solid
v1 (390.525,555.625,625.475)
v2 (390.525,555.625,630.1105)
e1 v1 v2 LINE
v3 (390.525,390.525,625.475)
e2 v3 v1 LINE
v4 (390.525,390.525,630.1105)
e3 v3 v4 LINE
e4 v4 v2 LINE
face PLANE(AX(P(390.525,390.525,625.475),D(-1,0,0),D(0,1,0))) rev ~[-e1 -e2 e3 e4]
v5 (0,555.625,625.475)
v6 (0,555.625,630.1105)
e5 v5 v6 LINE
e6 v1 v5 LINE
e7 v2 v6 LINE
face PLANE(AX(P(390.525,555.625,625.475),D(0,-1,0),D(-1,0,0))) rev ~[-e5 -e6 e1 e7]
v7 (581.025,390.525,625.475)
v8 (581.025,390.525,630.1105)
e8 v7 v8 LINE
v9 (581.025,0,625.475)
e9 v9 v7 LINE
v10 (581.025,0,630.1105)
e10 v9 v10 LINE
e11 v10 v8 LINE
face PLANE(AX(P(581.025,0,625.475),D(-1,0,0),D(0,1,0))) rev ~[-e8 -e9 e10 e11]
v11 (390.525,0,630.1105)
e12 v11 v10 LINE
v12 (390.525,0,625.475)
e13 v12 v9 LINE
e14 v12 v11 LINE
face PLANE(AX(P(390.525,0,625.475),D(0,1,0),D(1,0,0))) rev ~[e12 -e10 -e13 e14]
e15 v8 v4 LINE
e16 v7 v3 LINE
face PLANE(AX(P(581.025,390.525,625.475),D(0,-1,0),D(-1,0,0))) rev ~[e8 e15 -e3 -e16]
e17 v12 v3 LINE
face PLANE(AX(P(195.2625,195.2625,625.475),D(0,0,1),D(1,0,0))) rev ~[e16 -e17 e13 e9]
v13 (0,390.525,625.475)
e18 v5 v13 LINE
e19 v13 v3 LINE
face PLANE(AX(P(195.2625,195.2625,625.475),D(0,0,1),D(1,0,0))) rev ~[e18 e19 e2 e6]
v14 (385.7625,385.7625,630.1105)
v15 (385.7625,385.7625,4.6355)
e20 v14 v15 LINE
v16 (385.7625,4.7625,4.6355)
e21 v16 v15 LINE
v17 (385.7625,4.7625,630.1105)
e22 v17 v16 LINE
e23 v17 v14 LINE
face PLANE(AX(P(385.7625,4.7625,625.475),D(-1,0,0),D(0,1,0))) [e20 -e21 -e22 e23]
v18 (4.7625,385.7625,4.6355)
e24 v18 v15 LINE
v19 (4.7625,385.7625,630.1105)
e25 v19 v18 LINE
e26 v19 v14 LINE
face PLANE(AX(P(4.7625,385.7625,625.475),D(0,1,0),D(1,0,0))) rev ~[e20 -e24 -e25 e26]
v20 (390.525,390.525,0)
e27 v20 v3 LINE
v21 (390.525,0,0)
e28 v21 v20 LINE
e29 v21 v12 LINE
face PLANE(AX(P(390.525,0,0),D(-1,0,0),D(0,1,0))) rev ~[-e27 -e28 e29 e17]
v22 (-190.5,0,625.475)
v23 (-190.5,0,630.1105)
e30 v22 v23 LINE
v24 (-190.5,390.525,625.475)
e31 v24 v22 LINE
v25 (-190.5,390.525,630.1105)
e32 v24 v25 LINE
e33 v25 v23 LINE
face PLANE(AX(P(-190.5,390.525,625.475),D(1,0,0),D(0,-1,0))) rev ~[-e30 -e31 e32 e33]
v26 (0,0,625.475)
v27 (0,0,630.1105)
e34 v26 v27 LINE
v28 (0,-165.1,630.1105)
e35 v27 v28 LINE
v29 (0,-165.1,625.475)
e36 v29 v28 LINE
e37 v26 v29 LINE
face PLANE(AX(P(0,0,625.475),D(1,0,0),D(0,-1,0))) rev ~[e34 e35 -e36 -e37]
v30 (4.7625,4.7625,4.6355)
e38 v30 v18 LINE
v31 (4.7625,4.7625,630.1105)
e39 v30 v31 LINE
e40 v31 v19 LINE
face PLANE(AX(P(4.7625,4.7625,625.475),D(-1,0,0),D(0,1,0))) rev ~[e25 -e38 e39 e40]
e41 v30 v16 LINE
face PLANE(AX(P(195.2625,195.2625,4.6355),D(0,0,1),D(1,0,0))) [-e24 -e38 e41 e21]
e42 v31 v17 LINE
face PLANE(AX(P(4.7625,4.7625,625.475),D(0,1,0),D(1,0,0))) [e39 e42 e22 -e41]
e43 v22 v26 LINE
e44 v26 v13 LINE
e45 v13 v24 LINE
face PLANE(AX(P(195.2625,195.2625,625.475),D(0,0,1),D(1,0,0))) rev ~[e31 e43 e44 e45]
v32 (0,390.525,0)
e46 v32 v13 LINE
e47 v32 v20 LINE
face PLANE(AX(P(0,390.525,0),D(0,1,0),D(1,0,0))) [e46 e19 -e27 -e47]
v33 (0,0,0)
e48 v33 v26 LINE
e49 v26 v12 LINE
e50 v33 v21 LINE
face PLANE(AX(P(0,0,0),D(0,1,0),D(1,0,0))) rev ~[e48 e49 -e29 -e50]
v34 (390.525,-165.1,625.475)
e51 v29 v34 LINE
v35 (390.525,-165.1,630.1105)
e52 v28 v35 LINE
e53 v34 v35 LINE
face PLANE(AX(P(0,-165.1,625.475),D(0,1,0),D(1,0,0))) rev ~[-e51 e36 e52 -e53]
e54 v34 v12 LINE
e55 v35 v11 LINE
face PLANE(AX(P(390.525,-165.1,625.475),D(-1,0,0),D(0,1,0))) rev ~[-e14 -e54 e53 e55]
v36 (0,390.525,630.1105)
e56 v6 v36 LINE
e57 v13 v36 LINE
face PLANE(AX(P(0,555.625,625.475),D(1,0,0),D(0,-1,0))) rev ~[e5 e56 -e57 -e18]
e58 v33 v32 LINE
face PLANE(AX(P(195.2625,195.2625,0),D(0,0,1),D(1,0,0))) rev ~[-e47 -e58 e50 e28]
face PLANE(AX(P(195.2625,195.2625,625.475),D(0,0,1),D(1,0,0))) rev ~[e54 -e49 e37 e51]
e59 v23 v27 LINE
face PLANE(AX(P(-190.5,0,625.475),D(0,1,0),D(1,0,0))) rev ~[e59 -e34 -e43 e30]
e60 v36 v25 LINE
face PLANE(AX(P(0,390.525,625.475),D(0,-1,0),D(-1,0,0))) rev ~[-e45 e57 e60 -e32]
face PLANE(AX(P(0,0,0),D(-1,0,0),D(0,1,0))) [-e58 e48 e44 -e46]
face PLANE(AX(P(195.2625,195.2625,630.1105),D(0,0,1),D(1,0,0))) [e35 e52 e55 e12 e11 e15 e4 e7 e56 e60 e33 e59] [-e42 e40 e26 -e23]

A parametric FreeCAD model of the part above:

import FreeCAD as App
import Part
import Sketcher

V = App.Vector
Q = App.Units.Quantity

doc = App.newDocument("Part")
body = doc.addObject("PartDesign::Body", "Body")

sketch1 = body.newObject("Sketcher::SketchObject", "Sketch")
sketch1.AttachmentSupport = (doc.getObject("XY_Plane"), [""])
sketch1.MapMode = "FlatFace"
sketch1.addGeometry(Part.LineSegment(V(0, 391, 0), V(0, 0, 0)), False)
sketch1.addGeometry(Part.LineSegment(V(0, 0, 0), V(391, 0, 0)), False)
sketch1.addGeometry(Part.LineSegment(V(391, 0, 0), V(391, 391, 0)), False)
sketch1.addGeometry(Part.LineSegment(V(391, 391, 0), V(0, 391, 0)), False)
sketch1.addGeometry(Part.LineSegment(V(386, 5, 0), V(5, 5, 0)), False)
sketch1.addGeometry(Part.LineSegment(V(5, 5, 0), V(5, 386, 0)), False)
sketch1.addGeometry(Part.LineSegment(V(5, 386, 0), V(386, 386, 0)), False)
sketch1.addGeometry(Part.LineSegment(V(386, 386, 0), V(386, 5, 0)), False)
sketch1.addConstraint(Sketcher.Constraint("Coincident", 0, 2, 1, 1))
sketch1.addConstraint(Sketcher.Constraint("Coincident", 1, 2, 2, 1))
sketch1.addConstraint(Sketcher.Constraint("Coincident", 2, 2, 3, 1))
sketch1.addConstraint(Sketcher.Constraint("Coincident", 3, 2, 0, 1))
sketch1.addConstraint(Sketcher.Constraint("Coincident", 4, 2, 5, 1))
sketch1.addConstraint(Sketcher.Constraint("Coincident", 5, 2, 6, 1))
sketch1.addConstraint(Sketcher.Constraint("Coincident", 6, 2, 7, 1))
sketch1.addConstraint(Sketcher.Constraint("Coincident", 7, 2, 4, 1))
sketch1.addConstraint(Sketcher.Constraint("Vertical", 0))
sketch1.addConstraint(Sketcher.Constraint("Horizontal", 1))
sketch1.addConstraint(Sketcher.Constraint("Vertical", 2))
sketch1.addConstraint(Sketcher.Constraint("Horizontal", 3))
sketch1.addConstraint(Sketcher.Constraint("Horizontal", 4))
sketch1.addConstraint(Sketcher.Constraint("Vertical", 5))
sketch1.addConstraint(Sketcher.Constraint("Horizontal", 6))
sketch1.addConstraint(Sketcher.Constraint("Vertical", 7))
sketch1.addConstraint(Sketcher.Constraint("Coincident", 0, 2, -1, 1))
sketch1.addConstraint(Sketcher.Constraint("Equal", 3, 0))
sketch1.addConstraint(Sketcher.Constraint("Equal", 6, 5))
sketch1.addConstraint(Sketcher.Constraint("DistanceX", 4, 2, 4, 1, Q("15 in")))
sketch1.addConstraint(Sketcher.Constraint("DistanceX", 1, 1, 1, 2, Q("15.375 in")))
sketch1.addConstraint(Sketcher.Constraint("DistanceX", -1, 1, 4, 2, Q("0.1875 in")))
sketch1.addConstraint(Sketcher.Constraint("DistanceY", -1, 1, 4, 2, Q("0.1875 in")))
pad1 = body.newObject("PartDesign::Pad", "Pad")
pad1.Profile = sketch1
pad1.Length = Q("24.625 in")

sketch2 = body.newObject("Sketcher::SketchObject", "Sketch001")
sketch2.AttachmentSupport = (doc.getObject("XY_Plane"), [""])
sketch2.MapMode = "FlatFace"
sketch2.addGeometry(Part.LineSegment(V(5, 386, 0), V(5, 5, 0)), False)
sketch2.addGeometry(Part.LineSegment(V(5, 5, 0), V(386, 5, 0)), False)
sketch2.addGeometry(Part.LineSegment(V(386, 5, 0), V(386, 386, 0)), False)
sketch2.addGeometry(Part.LineSegment(V(386, 386, 0), V(5, 386, 0)), False)
sketch2.addConstraint(Sketcher.Constraint("Coincident", 0, 2, 1, 1))
sketch2.addConstraint(Sketcher.Constraint("Coincident", 1, 2, 2, 1))
sketch2.addConstraint(Sketcher.Constraint("Coincident", 2, 2, 3, 1))
sketch2.addConstraint(Sketcher.Constraint("Coincident", 3, 2, 0, 1))
sketch2.addConstraint(Sketcher.Constraint("Vertical", 0))
sketch2.addConstraint(Sketcher.Constraint("Horizontal", 1))
sketch2.addConstraint(Sketcher.Constraint("Vertical", 2))
sketch2.addConstraint(Sketcher.Constraint("Horizontal", 3))
sketch2.addConstraint(Sketcher.Constraint("Equal", 3, 0))
sketch2.addConstraint(Sketcher.Constraint("DistanceX", 1, 1, 1, 2, Q("15 in")))
sketch2.addConstraint(Sketcher.Constraint("DistanceX", -1, 1, 0, 2, Q("0.1875 in")))
sketch2.addConstraint(Sketcher.Constraint("DistanceY", -1, 1, 0, 2, Q("0.1875 in")))
pad2 = body.newObject("PartDesign::Pad", "Pad001")
pad2.Profile = sketch2
pad2.Length = Q("0.1825 in")

sketch3 = body.newObject("Sketcher::SketchObject", "Sketch002")
sketch3.AttachmentSupport = (doc.getObject("XY_Plane"), [""])
sketch3.MapMode = "FlatFace"
sketch3.AttachmentOffset = App.Placement(V(0, 0, 24.625 * 25.4), App.Rotation())
sketch3.addGeometry(Part.LineSegment(V(-190, 0, 0), V(0, 0, 0)), False)
sketch3.addGeometry(Part.LineSegment(V(0, 0, 0), V(0, -165, 0)), False)
sketch3.addGeometry(Part.LineSegment(V(0, -165, 0), V(391, -165, 0)), False)
sketch3.addGeometry(Part.LineSegment(V(391, -165, 0), V(391, 0, 0)), False)
sketch3.addGeometry(Part.LineSegment(V(391, 0, 0), V(581, 0, 0)), False)
sketch3.addGeometry(Part.LineSegment(V(581, 0, 0), V(581, 391, 0)), False)
sketch3.addGeometry(Part.LineSegment(V(581, 391, 0), V(391, 391, 0)), False)
sketch3.addGeometry(Part.LineSegment(V(391, 391, 0), V(391, 556, 0)), False)
sketch3.addGeometry(Part.LineSegment(V(391, 556, 0), V(0, 556, 0)), False)
sketch3.addGeometry(Part.LineSegment(V(0, 556, 0), V(0, 391, 0)), False)
sketch3.addGeometry(Part.LineSegment(V(0, 391, 0), V(-190, 391, 0)), False)
sketch3.addGeometry(Part.LineSegment(V(-190, 391, 0), V(-190, 0, 0)), False)
sketch3.addGeometry(Part.LineSegment(V(386, 5, 0), V(5, 5, 0)), False)
sketch3.addGeometry(Part.LineSegment(V(5, 5, 0), V(5, 386, 0)), False)
sketch3.addGeometry(Part.LineSegment(V(5, 386, 0), V(386, 386, 0)), False)
sketch3.addGeometry(Part.LineSegment(V(386, 386, 0), V(386, 5, 0)), False)
sketch3.addConstraint(Sketcher.Constraint("Coincident", 0, 2, 1, 1))
sketch3.addConstraint(Sketcher.Constraint("Coincident", 1, 2, 2, 1))
sketch3.addConstraint(Sketcher.Constraint("Coincident", 2, 2, 3, 1))
sketch3.addConstraint(Sketcher.Constraint("Coincident", 3, 2, 4, 1))
sketch3.addConstraint(Sketcher.Constraint("Coincident", 4, 2, 5, 1))
sketch3.addConstraint(Sketcher.Constraint("Coincident", 5, 2, 6, 1))
sketch3.addConstraint(Sketcher.Constraint("Coincident", 6, 2, 7, 1))
sketch3.addConstraint(Sketcher.Constraint("Coincident", 7, 2, 8, 1))
sketch3.addConstraint(Sketcher.Constraint("Coincident", 8, 2, 9, 1))
sketch3.addConstraint(Sketcher.Constraint("Coincident", 9, 2, 10, 1))
sketch3.addConstraint(Sketcher.Constraint("Coincident", 10, 2, 11, 1))
sketch3.addConstraint(Sketcher.Constraint("Coincident", 11, 2, 0, 1))
sketch3.addConstraint(Sketcher.Constraint("Coincident", 12, 2, 13, 1))
sketch3.addConstraint(Sketcher.Constraint("Coincident", 13, 2, 14, 1))
sketch3.addConstraint(Sketcher.Constraint("Coincident", 14, 2, 15, 1))
sketch3.addConstraint(Sketcher.Constraint("Coincident", 15, 2, 12, 1))
sketch3.addConstraint(Sketcher.Constraint("Horizontal", 0))
sketch3.addConstraint(Sketcher.Constraint("Vertical", 1))
sketch3.addConstraint(Sketcher.Constraint("Horizontal", 2))
sketch3.addConstraint(Sketcher.Constraint("Vertical", 3))
sketch3.addConstraint(Sketcher.Constraint("Horizontal", 4))
sketch3.addConstraint(Sketcher.Constraint("Vertical", 5))
sketch3.addConstraint(Sketcher.Constraint("Horizontal", 6))
sketch3.addConstraint(Sketcher.Constraint("Vertical", 7))
sketch3.addConstraint(Sketcher.Constraint("Horizontal", 8))
sketch3.addConstraint(Sketcher.Constraint("Vertical", 9))
sketch3.addConstraint(Sketcher.Constraint("Horizontal", 10))
sketch3.addConstraint(Sketcher.Constraint("Vertical", 11))
sketch3.addConstraint(Sketcher.Constraint("Horizontal", 12))
sketch3.addConstraint(Sketcher.Constraint("Vertical", 13))
sketch3.addConstraint(Sketcher.Constraint("Horizontal", 14))
sketch3.addConstraint(Sketcher.Constraint("Vertical", 15))
sketch3.addConstraint(Sketcher.Constraint("Coincident", 0, 2, -1, 1))
sketch3.addConstraint(Sketcher.Constraint("PointOnObject", 3, 2, -1))
sketch3.addConstraint(Sketcher.Constraint("PointOnObject", 8, 2, -2))
sketch3.addConstraint(Sketcher.Constraint("Horizontal", 6, 2, 9, 2))
sketch3.addConstraint(Sketcher.Constraint("Vertical", 3, 2, 6, 2))
sketch3.addConstraint(Sketcher.Constraint("Equal", 0, 4))
sketch3.addConstraint(Sketcher.Constraint("Equal", 8, 5))
sketch3.addConstraint(Sketcher.Constraint("Equal", 3, 7))
sketch3.addConstraint(Sketcher.Constraint("Equal", 14, 13))
sketch3.addConstraint(Sketcher.Constraint("DistanceX", 12, 2, 12, 1, Q("15 in")))
sketch3.addConstraint(Sketcher.Constraint("DistanceX", 0, 1, 0, 2, Q("7.5 in")))
sketch3.addConstraint(Sketcher.Constraint("DistanceY", 1, 2, 1, 1, Q("6.5 in")))
sketch3.addConstraint(Sketcher.Constraint("DistanceX", 2, 1, 2, 2, Q("15.375 in")))
sketch3.addConstraint(Sketcher.Constraint("DistanceX", -1, 1, 12, 2, Q("0.1875 in")))
sketch3.addConstraint(Sketcher.Constraint("DistanceY", -1, 1, 12, 2, Q("0.1875 in")))
pad3 = body.newObject("PartDesign::Pad", "Pad002")
pad3.Profile = sketch3
pad3.Length = Q("0.1825 in")

doc.recompute()
